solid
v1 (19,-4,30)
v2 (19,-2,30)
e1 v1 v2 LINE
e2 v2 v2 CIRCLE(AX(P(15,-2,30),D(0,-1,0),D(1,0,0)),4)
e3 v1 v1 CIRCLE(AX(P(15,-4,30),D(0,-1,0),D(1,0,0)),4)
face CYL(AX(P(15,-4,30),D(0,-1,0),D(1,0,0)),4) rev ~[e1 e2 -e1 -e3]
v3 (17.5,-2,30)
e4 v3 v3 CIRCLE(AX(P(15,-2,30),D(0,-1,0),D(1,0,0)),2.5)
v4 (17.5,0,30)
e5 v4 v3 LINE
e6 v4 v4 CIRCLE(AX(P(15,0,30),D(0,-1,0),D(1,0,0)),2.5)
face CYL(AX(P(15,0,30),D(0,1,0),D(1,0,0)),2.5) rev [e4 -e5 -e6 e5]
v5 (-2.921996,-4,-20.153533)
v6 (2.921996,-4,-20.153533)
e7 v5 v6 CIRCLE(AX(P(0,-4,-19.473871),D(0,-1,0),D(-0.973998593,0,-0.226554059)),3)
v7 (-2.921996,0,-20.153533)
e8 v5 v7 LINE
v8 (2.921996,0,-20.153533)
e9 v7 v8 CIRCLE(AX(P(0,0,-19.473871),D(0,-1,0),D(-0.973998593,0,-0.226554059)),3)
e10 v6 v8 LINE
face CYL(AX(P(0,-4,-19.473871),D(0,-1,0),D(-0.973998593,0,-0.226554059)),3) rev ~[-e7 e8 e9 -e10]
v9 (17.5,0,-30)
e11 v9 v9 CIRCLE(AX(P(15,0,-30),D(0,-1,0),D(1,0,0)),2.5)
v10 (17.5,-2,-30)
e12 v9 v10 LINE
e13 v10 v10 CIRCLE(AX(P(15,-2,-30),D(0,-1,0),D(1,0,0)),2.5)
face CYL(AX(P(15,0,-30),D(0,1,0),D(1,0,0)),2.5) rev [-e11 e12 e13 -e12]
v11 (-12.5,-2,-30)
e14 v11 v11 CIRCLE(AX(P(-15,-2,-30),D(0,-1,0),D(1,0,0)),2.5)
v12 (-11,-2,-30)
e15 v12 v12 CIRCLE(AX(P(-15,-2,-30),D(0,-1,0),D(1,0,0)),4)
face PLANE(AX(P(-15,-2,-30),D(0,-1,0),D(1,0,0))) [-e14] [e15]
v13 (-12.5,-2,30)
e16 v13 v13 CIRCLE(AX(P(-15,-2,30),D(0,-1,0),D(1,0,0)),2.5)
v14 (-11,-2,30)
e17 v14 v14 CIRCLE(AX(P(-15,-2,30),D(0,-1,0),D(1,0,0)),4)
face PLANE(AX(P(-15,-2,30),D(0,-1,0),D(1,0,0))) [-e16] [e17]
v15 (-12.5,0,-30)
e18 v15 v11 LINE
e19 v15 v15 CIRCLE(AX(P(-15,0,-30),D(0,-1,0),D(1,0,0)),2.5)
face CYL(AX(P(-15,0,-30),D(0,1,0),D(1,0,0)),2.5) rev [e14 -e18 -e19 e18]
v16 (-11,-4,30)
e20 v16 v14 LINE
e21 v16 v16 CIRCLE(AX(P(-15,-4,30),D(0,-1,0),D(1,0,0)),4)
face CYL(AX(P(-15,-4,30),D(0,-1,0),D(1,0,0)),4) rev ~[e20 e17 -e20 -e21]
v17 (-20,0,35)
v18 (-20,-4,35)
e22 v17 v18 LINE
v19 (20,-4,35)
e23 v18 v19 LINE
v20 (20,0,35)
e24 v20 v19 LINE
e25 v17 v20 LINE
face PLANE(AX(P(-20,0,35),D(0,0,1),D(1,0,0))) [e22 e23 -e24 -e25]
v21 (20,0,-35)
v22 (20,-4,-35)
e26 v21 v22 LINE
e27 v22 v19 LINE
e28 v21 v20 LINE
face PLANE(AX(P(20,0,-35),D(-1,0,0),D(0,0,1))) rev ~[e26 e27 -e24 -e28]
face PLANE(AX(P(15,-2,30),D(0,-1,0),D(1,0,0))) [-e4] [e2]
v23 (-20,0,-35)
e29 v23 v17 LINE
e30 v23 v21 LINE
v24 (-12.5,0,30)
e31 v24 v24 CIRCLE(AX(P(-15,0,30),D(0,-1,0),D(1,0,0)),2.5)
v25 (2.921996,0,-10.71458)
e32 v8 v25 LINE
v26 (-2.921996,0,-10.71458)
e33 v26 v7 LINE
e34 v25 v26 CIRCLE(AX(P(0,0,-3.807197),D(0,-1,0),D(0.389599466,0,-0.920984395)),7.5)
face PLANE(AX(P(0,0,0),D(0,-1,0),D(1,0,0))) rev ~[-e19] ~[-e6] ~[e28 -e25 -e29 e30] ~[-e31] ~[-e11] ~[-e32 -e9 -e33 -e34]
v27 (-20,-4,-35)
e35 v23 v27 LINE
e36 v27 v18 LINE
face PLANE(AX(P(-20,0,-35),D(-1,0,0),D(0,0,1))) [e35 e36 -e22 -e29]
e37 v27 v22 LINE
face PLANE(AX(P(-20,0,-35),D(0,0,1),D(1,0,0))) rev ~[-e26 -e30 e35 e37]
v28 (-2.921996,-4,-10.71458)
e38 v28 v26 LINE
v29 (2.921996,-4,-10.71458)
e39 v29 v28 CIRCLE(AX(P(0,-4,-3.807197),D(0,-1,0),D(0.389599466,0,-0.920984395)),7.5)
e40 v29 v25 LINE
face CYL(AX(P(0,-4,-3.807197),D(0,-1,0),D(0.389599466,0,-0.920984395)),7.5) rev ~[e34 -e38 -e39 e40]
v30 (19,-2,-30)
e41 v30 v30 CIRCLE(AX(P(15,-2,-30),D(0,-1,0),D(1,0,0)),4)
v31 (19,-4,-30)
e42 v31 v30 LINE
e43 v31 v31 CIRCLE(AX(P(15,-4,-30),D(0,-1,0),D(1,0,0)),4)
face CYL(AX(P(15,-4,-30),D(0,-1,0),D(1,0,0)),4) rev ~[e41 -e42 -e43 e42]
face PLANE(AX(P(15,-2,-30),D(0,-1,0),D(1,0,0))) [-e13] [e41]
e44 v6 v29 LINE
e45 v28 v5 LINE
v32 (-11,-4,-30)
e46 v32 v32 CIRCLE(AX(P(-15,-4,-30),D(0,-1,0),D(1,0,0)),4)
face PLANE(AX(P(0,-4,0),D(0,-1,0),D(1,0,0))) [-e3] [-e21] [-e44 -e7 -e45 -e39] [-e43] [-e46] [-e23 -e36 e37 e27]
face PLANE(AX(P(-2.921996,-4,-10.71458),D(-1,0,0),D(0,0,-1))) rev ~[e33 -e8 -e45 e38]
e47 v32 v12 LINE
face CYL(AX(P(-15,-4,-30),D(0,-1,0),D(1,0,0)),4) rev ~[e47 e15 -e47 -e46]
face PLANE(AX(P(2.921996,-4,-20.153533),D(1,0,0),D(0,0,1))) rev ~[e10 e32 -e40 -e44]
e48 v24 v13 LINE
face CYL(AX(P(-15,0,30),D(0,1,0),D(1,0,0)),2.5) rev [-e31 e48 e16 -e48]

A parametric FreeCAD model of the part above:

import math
import FreeCAD as App
import Part
import Sketcher

V = App.Vector
Q = App.Units.Quantity


def add_polygon(sketch, points):
    """Adds a closed chain of lines whose ends are joined by coincident constraints."""
    first, n = sketch.GeometryCount, len(points)
    for a, b in zip(points, points[1:] + points[:1]):
        sketch.addGeometry(Part.LineSegment(App.Vector(*a, 0), App.Vector(*b, 0)), False)
    for i in range(n):
        sketch.addConstraint(Sketcher.Constraint("Coincident", first + i, 2, first + (i + 1) % n, 1))

doc = App.newDocument("Part")
params = doc.addObject("Spreadsheet::Sheet", "Params")
for row, (alias, value) in enumerate([
    ("sketch1_diameter", "5 mm"),
    ("sketch1_width", "40 mm"),
    ("sketch1_height", "70 mm"),
    ("pad1_length", "4 mm"),
    ("sketch2_diameter", "8 mm"),
    ("sketch2_diameter2", "5 mm"),
    ("pocket1_length", "2 mm"),
    ("sketch3_radius", "3 mm"),
    ("sketch3_radius2", "7.5 mm"),
    ("pocket2_length", "25 mm"),
], start=1):
    params.set(f"A{row}", alias)
    params.set(f"B{row}", "=" + value)
    params.setAlias(f"B{row}", alias)

body = doc.addObject("PartDesign::Body", "Body")

sketch1 = body.newObject("Sketcher::SketchObject", "Sketch")
sketch1.AttachmentSupport = (doc.getObject("XZ_Plane"), [""])
sketch1.MapMode = "FlatFace"
add_polygon(sketch1, [(-20, 35), (-20, -35), (20, -35), (20, 35)])
sketch1.addGeometry(Part.Circle(V(-15, -30, 0), V(0, 0, 1), 2.5), False)
sketch1.addGeometry(Part.Circle(V(15, -30, 0), V(0, 0, 1), 2.5), False)
sketch1.addGeometry(Part.Circle(V(-15, 30, 0), V(0, 0, 1), 2.5), False)
sketch1.addGeometry(Part.Circle(V(15, 30, 0), V(0, 0, 1), 2.5), False)
sketch1.addConstraint(Sketcher.Constraint("Vertical", 0))
sketch1.addConstraint(Sketcher.Constraint("Horizontal", 1))
sketch1.addConstraint(Sketcher.Constraint("Vertical", 2))
sketch1.addConstraint(Sketcher.Constraint("Horizontal", 3))
sketch1.addConstraint(Sketcher.Constraint("Equal", 4, 5))
sketch1.addConstraint(Sketcher.Constraint("Equal", 5, 6))
sketch1.addConstraint(Sketcher.Constraint("Equal", 6, 7))
sketch1.addConstraint(Sketcher.Constraint("Symmetric", 5, 3, 6, 3, -1, 1))
sketch1.addConstraint(Sketcher.Constraint("Symmetric", 4, 3, 7, 3, -1, 1))
sketch1.addConstraint(Sketcher.Constraint("Symmetric", 0, 2, 2, 2, -1, 1))
sketch1.addConstraint(Sketcher.Constraint("Symmetric", 4, 3, 5, 3, -2))
sketch1.addConstraint(Sketcher.Constraint("Diameter", 4, Q("5 mm")))
sketch1.addConstraint(Sketcher.Constraint("DistanceX", 1, 1, 1, 2, Q("40 mm")))
sketch1.addConstraint(Sketcher.Constraint("DistanceY", 0, 2, 0, 1, Q("70 mm")))
sketch1.addConstraint(Sketcher.Constraint("DistanceX", 4, 3, -1, 1, Q("15 mm")))
sketch1.addConstraint(Sketcher.Constraint("DistanceY", 4, 3, -1, 1, Q("30 mm")))
sketch1.setExpression("Constraints[15]", "Params.sketch1_diameter")
sketch1.setExpression("Constraints[16]", "Params.sketch1_width")
sketch1.setExpression("Constraints[17]", "Params.sketch1_height")
pad1 = body.newObject("PartDesign::Pad", "Pad")
pad1.Profile = sketch1
pad1.setExpression("Length", "Params.pad1_length")

sketch2 = body.newObject("Sketcher::SketchObject", "Sketch001")
sketch2.AttachmentSupport = (doc.getObject("XZ_Plane"), [""])
sketch2.MapMode = "FlatFace"
sketch2.AttachmentOffset = App.Placement(V(0, 0, 4), App.Rotation())
sketch2.addGeometry(Part.Circle(V(-15, 30, 0), V(0, 0, 1), 4), False)
sketch2.addGeometry(Part.Circle(V(-15, 30, 0), V(0, 0, 1), 2.5), False)
sketch2.addGeometry(Part.Circle(V(-15, -30, 0), V(0, 0, 1), 4), False)
sketch2.addGeometry(Part.Circle(V(-15, -30, 0), V(0, 0, 1), 2.5), False)
sketch2.addGeometry(Part.Circle(V(15, 30, 0), V(0, 0, 1), 4), False)
sketch2.addGeometry(Part.Circle(V(15, 30, 0), V(0, 0, 1), 2.5), False)
sketch2.addGeometry(Part.Circle(V(15, -30, 0), V(0, 0, 1), 4), False)
sketch2.addGeometry(Part.Circle(V(15, -30, 0), V(0, 0, 1), 2.5), False)
sketch2.addConstraint(Sketcher.Constraint("Coincident", 1, 3, 0, 3))
sketch2.addConstraint(Sketcher.Constraint("Coincident", 3, 3, 2, 3))
sketch2.addConstraint(Sketcher.Constraint("Coincident", 5, 3, 4, 3))
sketch2.addConstraint(Sketcher.Constraint("Coincident", 7, 3, 6, 3))
sketch2.addConstraint(Sketcher.Constraint("Equal", 0, 2))
sketch2.addConstraint(Sketcher.Constraint("Equal", 1, 3))
sketch2.addConstraint(Sketcher.Constraint("Equal", 2, 4))
sketch2.addConstraint(Sketcher.Constraint("Equal", 3, 5))
sketch2.addConstraint(Sketcher.Constraint("Equal", 4, 6))
sketch2.addConstraint(Sketcher.Constraint("Equal", 5, 7))
sketch2.addConstraint(Sketcher.Constraint("Symmetric", 2, 3, 4, 3, -1, 1))
sketch2.addConstraint(Sketcher.Constraint("Symmetric", 0, 3, 6, 3, -1, 1))
sketch2.addConstraint(Sketcher.Constraint("Symmetric", 0, 3, 4, 3, -2))
sketch2.addConstraint(Sketcher.Constraint("Diameter", 0, Q("8 mm")))
sketch2.addConstraint(Sketcher.Constraint("Diameter", 1, Q("5 mm")))
sketch2.addConstraint(Sketcher.Constraint("DistanceX", 0, 3, -1, 1, Q("15 mm")))
sketch2.addConstraint(Sketcher.Constraint("DistanceY", -1, 1, 0, 3, Q("30 mm")))
sketch2.setExpression("Constraints[13]", "Params.sketch2_diameter")
sketch2.setExpression("Constraints[14]", "Params.sketch2_diameter2")
pocket1 = body.newObject("PartDesign::Pocket", "Pocket")
pocket1.Profile = sketch2
pocket1.setExpression("Length", "Params.pocket1_length")

sketch3 = body.newObject("Sketcher::SketchObject", "Sketch002")
sketch3.AttachmentSupport = (doc.getObject("XZ_Plane"), [""])
sketch3.MapMode = "FlatFace"
sketch3.AttachmentOffset = App.Placement(V(0, 0, 4), App.Rotation())
sketch3.addGeometry(Part.LineSegment(V(2.921996, -20.153533, 0), V(2.921996, -10.71458, 0)), False)
sketch3.addGeometry(Part.ArcOfCircle(Part.Circle(V(0, -3.807197, 0), V(0, 0, 1), 7.5), math.radians(-67.070421), math.radians(247.070421)), False)
sketch3.addGeometry(Part.LineSegment(V(-2.921996, -10.71458, 0), V(-2.921996, -20.153533, 0)), False)
sketch3.addGeometry(Part.ArcOfCircle(Part.Circle(V(0, -19.473871, 0), V(0, 0, 1), 3), math.radians(-166.905721), math.radians(-13.094279)), False)
sketch3.addConstraint(Sketcher.Constraint("Coincident", 0, 2, 1, 1))
sketch3.addConstraint(Sketcher.Constraint("Coincident", 1, 2, 2, 1))
sketch3.addConstraint(Sketcher.Constraint("Coincident", 2, 2, 3, 1))
sketch3.addConstraint(Sketcher.Constraint("Coincident", 3, 2, 0, 1))
sketch3.addConstraint(Sketcher.Constraint("Vertical", 0))
sketch3.addConstraint(Sketcher.Constraint("Vertical", 2))
sketch3.addConstraint(Sketcher.Constraint("Symmetric", 0, 2, 1, 2, -2))
sketch3.addConstraint(Sketcher.Constraint("PointOnObject", 3, 3, -2))
sketch3.addConstraint(Sketcher.Constraint("Radius", 3, Q("3 mm")))
sketch3.addConstraint(Sketcher.Constraint("Radius", 1, Q("7.5 mm")))
sketch3.addConstraint(Sketcher.Constraint("DistanceY", 0, 1, 0, 2, Q("9.438953 mm")))
sketch3.addConstraint(Sketcher.Constraint("DistanceY", 3, 3, -1, 1, Q("19.473871 mm")))
sketch3.addConstraint(Sketcher.Constraint("DistanceY", 0, 2, -1, 1, Q("10.71458 mm")))
sketch3.setExpression("Constraints[8]", "Params.sketch3_radius")
sketch3.setExpression("Constraints[9]", "Params.sketch3_radius2")
pocket2 = body.newObject("PartDesign::Pocket", "Pocket001")
pocket2.Profile = sketch3
pocket2.setExpression("Length", "Params.pocket2_length")

doc.recompute()
